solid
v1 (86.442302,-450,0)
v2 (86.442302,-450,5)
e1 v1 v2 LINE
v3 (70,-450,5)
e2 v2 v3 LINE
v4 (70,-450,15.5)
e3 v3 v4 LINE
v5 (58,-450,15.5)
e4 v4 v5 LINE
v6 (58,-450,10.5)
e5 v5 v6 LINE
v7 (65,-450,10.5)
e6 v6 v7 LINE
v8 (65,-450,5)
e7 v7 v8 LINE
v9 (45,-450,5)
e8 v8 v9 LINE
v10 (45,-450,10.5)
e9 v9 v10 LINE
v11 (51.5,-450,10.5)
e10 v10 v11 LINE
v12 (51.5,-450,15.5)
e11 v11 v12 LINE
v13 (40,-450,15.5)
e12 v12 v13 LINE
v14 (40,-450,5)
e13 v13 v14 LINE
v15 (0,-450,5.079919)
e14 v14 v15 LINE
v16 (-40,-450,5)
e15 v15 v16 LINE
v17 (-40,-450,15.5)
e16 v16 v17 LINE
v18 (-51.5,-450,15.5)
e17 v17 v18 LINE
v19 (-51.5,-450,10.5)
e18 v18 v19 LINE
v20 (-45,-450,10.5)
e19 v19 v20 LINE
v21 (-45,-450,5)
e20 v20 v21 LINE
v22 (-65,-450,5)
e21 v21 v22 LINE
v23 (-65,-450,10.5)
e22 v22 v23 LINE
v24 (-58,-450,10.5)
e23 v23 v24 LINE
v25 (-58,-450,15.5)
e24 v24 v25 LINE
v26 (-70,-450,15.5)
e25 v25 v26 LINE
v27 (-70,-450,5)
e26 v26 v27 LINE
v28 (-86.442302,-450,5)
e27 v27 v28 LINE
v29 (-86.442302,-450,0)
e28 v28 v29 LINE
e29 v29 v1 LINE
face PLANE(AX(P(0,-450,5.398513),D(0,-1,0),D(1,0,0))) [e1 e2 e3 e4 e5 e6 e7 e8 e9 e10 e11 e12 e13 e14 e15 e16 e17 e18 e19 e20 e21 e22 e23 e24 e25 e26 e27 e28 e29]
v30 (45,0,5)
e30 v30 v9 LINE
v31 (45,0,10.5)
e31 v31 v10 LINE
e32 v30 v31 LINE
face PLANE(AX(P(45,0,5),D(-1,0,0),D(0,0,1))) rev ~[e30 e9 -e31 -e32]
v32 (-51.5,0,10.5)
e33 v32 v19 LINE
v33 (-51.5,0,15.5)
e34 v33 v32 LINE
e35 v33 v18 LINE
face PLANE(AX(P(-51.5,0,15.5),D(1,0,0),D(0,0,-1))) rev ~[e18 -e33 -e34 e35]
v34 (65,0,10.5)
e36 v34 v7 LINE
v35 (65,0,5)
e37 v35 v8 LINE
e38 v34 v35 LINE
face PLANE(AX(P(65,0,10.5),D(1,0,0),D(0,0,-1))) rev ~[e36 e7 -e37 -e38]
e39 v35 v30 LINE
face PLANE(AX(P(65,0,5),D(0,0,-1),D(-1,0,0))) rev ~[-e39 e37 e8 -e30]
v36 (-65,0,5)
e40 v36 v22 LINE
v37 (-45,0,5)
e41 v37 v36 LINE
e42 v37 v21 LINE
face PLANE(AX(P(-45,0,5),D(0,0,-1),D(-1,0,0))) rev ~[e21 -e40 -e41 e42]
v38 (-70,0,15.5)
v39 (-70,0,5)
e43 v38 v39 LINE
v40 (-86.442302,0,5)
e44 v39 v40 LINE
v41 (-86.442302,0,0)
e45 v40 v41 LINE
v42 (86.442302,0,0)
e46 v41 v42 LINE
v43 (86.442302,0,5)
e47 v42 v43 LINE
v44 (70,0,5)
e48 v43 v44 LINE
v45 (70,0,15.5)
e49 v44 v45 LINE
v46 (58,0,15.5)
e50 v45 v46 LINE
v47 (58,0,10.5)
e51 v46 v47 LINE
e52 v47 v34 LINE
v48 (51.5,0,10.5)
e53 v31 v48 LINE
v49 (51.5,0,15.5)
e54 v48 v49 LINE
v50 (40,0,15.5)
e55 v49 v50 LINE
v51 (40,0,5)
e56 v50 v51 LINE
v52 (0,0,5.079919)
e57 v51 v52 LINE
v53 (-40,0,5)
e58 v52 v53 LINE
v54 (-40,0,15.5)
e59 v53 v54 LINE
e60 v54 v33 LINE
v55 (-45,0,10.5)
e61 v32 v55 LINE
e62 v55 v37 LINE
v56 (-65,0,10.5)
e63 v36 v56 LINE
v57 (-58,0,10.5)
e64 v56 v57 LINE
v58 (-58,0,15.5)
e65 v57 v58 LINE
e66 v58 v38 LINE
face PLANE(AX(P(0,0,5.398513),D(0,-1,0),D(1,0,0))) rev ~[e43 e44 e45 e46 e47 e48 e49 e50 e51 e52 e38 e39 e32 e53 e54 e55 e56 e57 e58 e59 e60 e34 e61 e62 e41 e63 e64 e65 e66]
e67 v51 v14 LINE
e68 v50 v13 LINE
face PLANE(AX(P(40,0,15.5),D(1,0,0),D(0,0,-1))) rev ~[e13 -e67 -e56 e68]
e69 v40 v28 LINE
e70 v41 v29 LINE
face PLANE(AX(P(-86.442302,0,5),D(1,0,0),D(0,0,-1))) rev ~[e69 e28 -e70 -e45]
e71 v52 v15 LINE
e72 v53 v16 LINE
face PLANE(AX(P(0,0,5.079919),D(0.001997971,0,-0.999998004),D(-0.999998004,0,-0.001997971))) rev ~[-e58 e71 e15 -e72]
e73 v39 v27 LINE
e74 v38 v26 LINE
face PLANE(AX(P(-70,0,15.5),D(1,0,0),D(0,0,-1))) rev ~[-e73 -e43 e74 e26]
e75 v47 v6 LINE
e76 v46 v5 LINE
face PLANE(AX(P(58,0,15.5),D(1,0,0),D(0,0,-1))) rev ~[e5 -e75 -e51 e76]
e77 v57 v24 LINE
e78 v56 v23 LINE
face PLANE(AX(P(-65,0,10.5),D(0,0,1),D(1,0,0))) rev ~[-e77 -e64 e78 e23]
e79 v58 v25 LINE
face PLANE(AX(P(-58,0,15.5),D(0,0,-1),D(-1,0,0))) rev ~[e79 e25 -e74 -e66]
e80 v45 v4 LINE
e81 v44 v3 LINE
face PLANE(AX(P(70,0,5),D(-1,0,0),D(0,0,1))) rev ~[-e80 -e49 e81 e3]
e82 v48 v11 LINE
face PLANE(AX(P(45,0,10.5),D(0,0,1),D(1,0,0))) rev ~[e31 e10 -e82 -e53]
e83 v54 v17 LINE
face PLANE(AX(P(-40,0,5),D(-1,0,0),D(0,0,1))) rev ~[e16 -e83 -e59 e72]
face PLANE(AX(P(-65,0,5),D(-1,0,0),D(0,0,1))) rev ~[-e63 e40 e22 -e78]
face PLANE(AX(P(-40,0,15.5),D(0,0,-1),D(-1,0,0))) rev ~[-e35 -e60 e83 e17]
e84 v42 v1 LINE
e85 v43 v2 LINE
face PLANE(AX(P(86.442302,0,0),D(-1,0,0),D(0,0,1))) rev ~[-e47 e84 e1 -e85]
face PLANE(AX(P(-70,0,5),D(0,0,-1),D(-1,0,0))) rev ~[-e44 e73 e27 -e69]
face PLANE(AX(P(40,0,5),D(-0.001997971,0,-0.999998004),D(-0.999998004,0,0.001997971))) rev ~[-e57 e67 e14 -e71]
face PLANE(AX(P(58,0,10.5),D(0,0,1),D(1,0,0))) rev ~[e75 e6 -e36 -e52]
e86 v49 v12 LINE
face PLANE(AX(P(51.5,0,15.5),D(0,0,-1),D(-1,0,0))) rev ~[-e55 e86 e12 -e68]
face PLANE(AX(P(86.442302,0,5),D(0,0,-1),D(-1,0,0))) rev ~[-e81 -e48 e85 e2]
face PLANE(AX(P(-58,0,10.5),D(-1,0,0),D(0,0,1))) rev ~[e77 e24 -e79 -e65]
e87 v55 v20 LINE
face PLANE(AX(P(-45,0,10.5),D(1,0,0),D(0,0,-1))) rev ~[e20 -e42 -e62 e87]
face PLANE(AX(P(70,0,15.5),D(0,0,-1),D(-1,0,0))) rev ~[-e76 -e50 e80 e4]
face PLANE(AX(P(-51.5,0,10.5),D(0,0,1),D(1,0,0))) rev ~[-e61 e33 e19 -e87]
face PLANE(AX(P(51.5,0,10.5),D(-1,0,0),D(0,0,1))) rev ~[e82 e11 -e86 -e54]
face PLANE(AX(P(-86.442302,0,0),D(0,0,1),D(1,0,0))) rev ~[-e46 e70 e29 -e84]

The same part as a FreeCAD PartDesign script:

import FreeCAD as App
import Part
import Sketcher
Q = App.Units.Quantity

doc = App.newDocument("Part")
body = doc.addObject("PartDesign::Body", "Body")

sketch1 = body.newObject("Sketcher::SketchObject", "Sketch")
sketch1.AttachmentSupport = (doc.getObject("XZ_Plane"), [""])
sketch1.MapMode = "FlatFace"
sketch1.addGeometry([
    Part.LineSegment(App.Vector(-86, 0, 0), App.Vector(86, 0, 0)),
    Part.LineSegment(App.Vector(86, 0, 0), App.Vector(86, 5, 0)),
    Part.LineSegment(App.Vector(86, 5, 0), App.Vector(70, 5, 0)),
    Part.LineSegment(App.Vector(70, 5, 0), App.Vector(70, 16, 0)),
    Part.LineSegment(App.Vector(70, 16, 0), App.Vector(58, 16, 0)),
    Part.LineSegment(App.Vector(58, 16, 0), App.Vector(58, 10, 0)),
    Part.LineSegment(App.Vector(58, 10, 0), App.Vector(65, 10, 0)),
    Part.LineSegment(App.Vector(65, 10, 0), App.Vector(65, 5, 0)),
    Part.LineSegment(App.Vector(65, 5, 0), App.Vector(45, 5, 0)),
    Part.LineSegment(App.Vector(45, 5, 0), App.Vector(45, 10, 0)),
    Part.LineSegment(App.Vector(45, 10, 0), App.Vector(52, 10, 0)),
    Part.LineSegment(App.Vector(52, 10, 0), App.Vector(52, 16, 0)),
    Part.LineSegment(App.Vector(52, 16, 0), App.Vector(40, 16, 0)),
    Part.LineSegment(App.Vector(40, 16, 0), App.Vector(40, 5, 0)),
    Part.LineSegment(App.Vector(40, 5, 0), App.Vector(0, 5, 0)),
    Part.LineSegment(App.Vector(0, 5, 0), App.Vector(-40, 5, 0)),
    Part.LineSegment(App.Vector(-40, 5, 0), App.Vector(-40, 16, 0)),
    Part.LineSegment(App.Vector(-40, 16, 0), App.Vector(-52, 16, 0)),
    Part.LineSegment(App.Vector(-52, 16, 0), App.Vector(-52, 10, 0)),
    Part.LineSegment(App.Vector(-52, 10, 0), App.Vector(-45, 10, 0)),
    Part.LineSegment(App.Vector(-45, 10, 0), App.Vector(-45, 5, 0)),
    Part.LineSegment(App.Vector(-45, 5, 0), App.Vector(-65, 5, 0)),
    Part.LineSegment(App.Vector(-65, 5, 0), App.Vector(-65, 10, 0)),
    Part.LineSegment(App.Vector(-65, 10, 0), App.Vector(-58, 10, 0)),
    Part.LineSegment(App.Vector(-58, 10, 0), App.Vector(-58, 16, 0)),
    Part.LineSegment(App.Vector(-58, 16, 0), App.Vector(-70, 16, 0)),
    Part.LineSegment(App.Vector(-70, 16, 0), App.Vector(-70, 5, 0)),
    Part.LineSegment(App.Vector(-70, 5, 0), App.Vector(-86, 5, 0)),
    Part.LineSegment(App.Vector(-86, 5, 0), App.Vector(-86, 0, 0)),
], False)
sketch1.addConstraint([
    Sketcher.Constraint("Coincident", 0, 2, 1, 1),
    Sketcher.Constraint("Coincident", 1, 2, 2, 1),
    Sketcher.Constraint("Coincident", 2, 2, 3, 1),
    Sketcher.Constraint("Coincident", 3, 2, 4, 1),
    Sketcher.Constraint("Coincident", 4, 2, 5, 1),
    Sketcher.Constraint("Coincident", 5, 2, 6, 1),
    Sketcher.Constraint("Coincident", 6, 2, 7, 1),
    Sketcher.Constraint("Coincident", 7, 2, 8, 1),
    Sketcher.Constraint("Coincident", 8, 2, 9, 1),
    Sketcher.Constraint("Coincident", 9, 2, 10, 1),
    Sketcher.Constraint("Coincident", 10, 2, 11, 1),
    Sketcher.Constraint("Coincident", 11, 2, 12, 1),
    Sketcher.Constraint("Coincident", 12, 2, 13, 1),
    Sketcher.Constraint("Coincident", 13, 2, 14, 1),
    Sketcher.Constraint("Coincident", 14, 2, 15, 1),
    Sketcher.Constraint("Coincident", 15, 2, 16, 1),
    Sketcher.Constraint("Coincident", 16, 2, 17, 1),
    Sketcher.Constraint("Coincident", 17, 2, 18, 1),
    Sketcher.Constraint("Coincident", 18, 2, 19, 1),
    Sketcher.Constraint("Coincident", 19, 2, 20, 1),
    Sketcher.Constraint("Coincident", 20, 2, 21, 1),
    Sketcher.Constraint("Coincident", 21, 2, 22, 1),
    Sketcher.Constraint("Coincident", 22, 2, 23, 1),
    Sketcher.Constraint("Coincident", 23, 2, 24, 1),
    Sketcher.Constraint("Coincident", 24, 2, 25, 1),
    Sketcher.Constraint("Coincident", 25, 2, 26, 1),
    Sketcher.Constraint("Coincident", 26, 2, 27, 1),
    Sketcher.Constraint("Coincident", 27, 2, 28, 1),
    Sketcher.Constraint("Coincident", 28, 2, 0, 1),
    Sketcher.Constraint("Horizontal", 0),
    Sketcher.Constraint("Vertical", 1),
    Sketcher.Constraint("Horizontal", 2),
    Sketcher.Constraint("Vertical", 3),
    Sketcher.Constraint("Horizontal", 4),
    Sketcher.Constraint("Vertical", 5),
    Sketcher.Constraint("Horizontal", 6),
    Sketcher.Constraint("Vertical", 7),
    Sketcher.Constraint("Horizontal", 8),
    Sketcher.Constraint("Vertical", 9),
    Sketcher.Constraint("Horizontal", 10),
    Sketcher.Constraint("Vertical", 11),
    Sketcher.Constraint("Horizontal", 12),
    Sketcher.Constraint("Vertical", 13),
    Sketcher.Constraint("Vertical", 16),
    Sketcher.Constraint("Horizontal", 17),
    Sketcher.Constraint("Vertical", 18),
    Sketcher.Constraint("Horizontal", 19),
    Sketcher.Constraint("Vertical", 20),
    Sketcher.Constraint("Horizontal", 21),
    Sketcher.Constraint("Vertical", 22),
    Sketcher.Constraint("Horizontal", 23),
    Sketcher.Constraint("Vertical", 24),
    Sketcher.Constraint("Horizontal", 25),
    Sketcher.Constraint("Vertical", 26),
    Sketcher.Constraint("Horizontal", 27),
    Sketcher.Constraint("Vertical", 28),
    Sketcher.Constraint("Symmetric", 0, 2, 28, 2, -1, 1),
    Sketcher.Constraint("Symmetric", 13, 2, 15, 2, -2),
    Sketcher.Constraint("Symmetric", 11, 2, 17, 2, -2),
    Sketcher.Constraint("Symmetric", 9, 2, 19, 2, -2),
    Sketcher.Constraint("Symmetric", 7, 2, 21, 2, -2),
    Sketcher.Constraint("Symmetric", 5, 2, 23, 2, -2),
    Sketcher.Constraint("Symmetric", 3, 2, 25, 2, -2),
    Sketcher.Constraint("PointOnObject", 14, 2, -2),
    Sketcher.Constraint("Horizontal", 2, 2, 7, 2),
    Sketcher.Constraint("Horizontal", 6, 2, 9, 2),
    Sketcher.Constraint("Horizontal", 4, 2, 11, 2),
    Sketcher.Constraint("Horizontal", 8, 2, 13, 2),
    Sketcher.Constraint("Horizontal", 21, 2, 26, 2),
    Sketcher.Constraint("Equal", 1, 5),
    Sketcher.Constraint("DistanceX", 4, 2, 4, 1, Q("12 mm")),
    Sketcher.Constraint("DistanceX", 6, 1, 6, 2, Q("7 mm")),
    Sketcher.Constraint("DistanceX", 8, 2, 8, 1, Q("20 mm")),
    Sketcher.Constraint("DistanceY", 1, 1, 1, 2, Q("5 mm")),
    Sketcher.Constraint("DistanceX", 10, 1, 10, 2, Q("6.5 mm")),
    Sketcher.Constraint("DistanceX", 12, 2, 12, 1, Q("11.5 mm")),
    Sketcher.Constraint("DistanceY", 3, 1, 3, 2, Q("10.5 mm")),
    Sketcher.Constraint("DistanceX", -1, 1, 2, 2, Q("70 mm")),
    Sketcher.Constraint("DistanceX", 2, 2, 2, 1, Q("16.442302 mm")),
    Sketcher.Constraint("DistanceY", -1, 1, 14, 2, Q("5.079919 mm")),
])
pad1 = body.newObject("PartDesign::Pad", "Pad")
pad1.Profile = sketch1
pad1.Length = 450

doc.recompute()
